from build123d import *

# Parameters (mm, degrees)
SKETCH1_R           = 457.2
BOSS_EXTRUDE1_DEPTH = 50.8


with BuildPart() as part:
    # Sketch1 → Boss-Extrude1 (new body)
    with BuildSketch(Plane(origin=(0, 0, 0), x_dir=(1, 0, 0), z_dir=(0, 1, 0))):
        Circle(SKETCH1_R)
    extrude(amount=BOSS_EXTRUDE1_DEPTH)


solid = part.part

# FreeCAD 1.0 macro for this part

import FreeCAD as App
import Part
import Sketcher
Q = App.Units.Quantity

doc = App.newDocument("Part")
body = doc.addObject("PartDesign::Body", "Body")

sketch1 = body.newObject("Sketcher::SketchObject", "Sketch")
sketch1.AttachmentSupport = (doc.getObject("XZ_Plane"), [""])
sketch1.MapMode = "FlatFace"
sketch1.addGeometry(Part.Circle(App.Vector(0, 0, 0), App.Vector(0, 0, 1), 457), False)
sketch1.addConstraint(Sketcher.Constraint("Coincident", 0, 3, -1, 1))
sketch1.addConstraint(Sketcher.Constraint("Diameter", 0, Q("36 in")))
pad1 = body.newObject("PartDesign::Pad", "Pad")
pad1.Profile = sketch1
pad1.Length = Q("2 in")
pad1.Reversed = True

doc.recompute()
